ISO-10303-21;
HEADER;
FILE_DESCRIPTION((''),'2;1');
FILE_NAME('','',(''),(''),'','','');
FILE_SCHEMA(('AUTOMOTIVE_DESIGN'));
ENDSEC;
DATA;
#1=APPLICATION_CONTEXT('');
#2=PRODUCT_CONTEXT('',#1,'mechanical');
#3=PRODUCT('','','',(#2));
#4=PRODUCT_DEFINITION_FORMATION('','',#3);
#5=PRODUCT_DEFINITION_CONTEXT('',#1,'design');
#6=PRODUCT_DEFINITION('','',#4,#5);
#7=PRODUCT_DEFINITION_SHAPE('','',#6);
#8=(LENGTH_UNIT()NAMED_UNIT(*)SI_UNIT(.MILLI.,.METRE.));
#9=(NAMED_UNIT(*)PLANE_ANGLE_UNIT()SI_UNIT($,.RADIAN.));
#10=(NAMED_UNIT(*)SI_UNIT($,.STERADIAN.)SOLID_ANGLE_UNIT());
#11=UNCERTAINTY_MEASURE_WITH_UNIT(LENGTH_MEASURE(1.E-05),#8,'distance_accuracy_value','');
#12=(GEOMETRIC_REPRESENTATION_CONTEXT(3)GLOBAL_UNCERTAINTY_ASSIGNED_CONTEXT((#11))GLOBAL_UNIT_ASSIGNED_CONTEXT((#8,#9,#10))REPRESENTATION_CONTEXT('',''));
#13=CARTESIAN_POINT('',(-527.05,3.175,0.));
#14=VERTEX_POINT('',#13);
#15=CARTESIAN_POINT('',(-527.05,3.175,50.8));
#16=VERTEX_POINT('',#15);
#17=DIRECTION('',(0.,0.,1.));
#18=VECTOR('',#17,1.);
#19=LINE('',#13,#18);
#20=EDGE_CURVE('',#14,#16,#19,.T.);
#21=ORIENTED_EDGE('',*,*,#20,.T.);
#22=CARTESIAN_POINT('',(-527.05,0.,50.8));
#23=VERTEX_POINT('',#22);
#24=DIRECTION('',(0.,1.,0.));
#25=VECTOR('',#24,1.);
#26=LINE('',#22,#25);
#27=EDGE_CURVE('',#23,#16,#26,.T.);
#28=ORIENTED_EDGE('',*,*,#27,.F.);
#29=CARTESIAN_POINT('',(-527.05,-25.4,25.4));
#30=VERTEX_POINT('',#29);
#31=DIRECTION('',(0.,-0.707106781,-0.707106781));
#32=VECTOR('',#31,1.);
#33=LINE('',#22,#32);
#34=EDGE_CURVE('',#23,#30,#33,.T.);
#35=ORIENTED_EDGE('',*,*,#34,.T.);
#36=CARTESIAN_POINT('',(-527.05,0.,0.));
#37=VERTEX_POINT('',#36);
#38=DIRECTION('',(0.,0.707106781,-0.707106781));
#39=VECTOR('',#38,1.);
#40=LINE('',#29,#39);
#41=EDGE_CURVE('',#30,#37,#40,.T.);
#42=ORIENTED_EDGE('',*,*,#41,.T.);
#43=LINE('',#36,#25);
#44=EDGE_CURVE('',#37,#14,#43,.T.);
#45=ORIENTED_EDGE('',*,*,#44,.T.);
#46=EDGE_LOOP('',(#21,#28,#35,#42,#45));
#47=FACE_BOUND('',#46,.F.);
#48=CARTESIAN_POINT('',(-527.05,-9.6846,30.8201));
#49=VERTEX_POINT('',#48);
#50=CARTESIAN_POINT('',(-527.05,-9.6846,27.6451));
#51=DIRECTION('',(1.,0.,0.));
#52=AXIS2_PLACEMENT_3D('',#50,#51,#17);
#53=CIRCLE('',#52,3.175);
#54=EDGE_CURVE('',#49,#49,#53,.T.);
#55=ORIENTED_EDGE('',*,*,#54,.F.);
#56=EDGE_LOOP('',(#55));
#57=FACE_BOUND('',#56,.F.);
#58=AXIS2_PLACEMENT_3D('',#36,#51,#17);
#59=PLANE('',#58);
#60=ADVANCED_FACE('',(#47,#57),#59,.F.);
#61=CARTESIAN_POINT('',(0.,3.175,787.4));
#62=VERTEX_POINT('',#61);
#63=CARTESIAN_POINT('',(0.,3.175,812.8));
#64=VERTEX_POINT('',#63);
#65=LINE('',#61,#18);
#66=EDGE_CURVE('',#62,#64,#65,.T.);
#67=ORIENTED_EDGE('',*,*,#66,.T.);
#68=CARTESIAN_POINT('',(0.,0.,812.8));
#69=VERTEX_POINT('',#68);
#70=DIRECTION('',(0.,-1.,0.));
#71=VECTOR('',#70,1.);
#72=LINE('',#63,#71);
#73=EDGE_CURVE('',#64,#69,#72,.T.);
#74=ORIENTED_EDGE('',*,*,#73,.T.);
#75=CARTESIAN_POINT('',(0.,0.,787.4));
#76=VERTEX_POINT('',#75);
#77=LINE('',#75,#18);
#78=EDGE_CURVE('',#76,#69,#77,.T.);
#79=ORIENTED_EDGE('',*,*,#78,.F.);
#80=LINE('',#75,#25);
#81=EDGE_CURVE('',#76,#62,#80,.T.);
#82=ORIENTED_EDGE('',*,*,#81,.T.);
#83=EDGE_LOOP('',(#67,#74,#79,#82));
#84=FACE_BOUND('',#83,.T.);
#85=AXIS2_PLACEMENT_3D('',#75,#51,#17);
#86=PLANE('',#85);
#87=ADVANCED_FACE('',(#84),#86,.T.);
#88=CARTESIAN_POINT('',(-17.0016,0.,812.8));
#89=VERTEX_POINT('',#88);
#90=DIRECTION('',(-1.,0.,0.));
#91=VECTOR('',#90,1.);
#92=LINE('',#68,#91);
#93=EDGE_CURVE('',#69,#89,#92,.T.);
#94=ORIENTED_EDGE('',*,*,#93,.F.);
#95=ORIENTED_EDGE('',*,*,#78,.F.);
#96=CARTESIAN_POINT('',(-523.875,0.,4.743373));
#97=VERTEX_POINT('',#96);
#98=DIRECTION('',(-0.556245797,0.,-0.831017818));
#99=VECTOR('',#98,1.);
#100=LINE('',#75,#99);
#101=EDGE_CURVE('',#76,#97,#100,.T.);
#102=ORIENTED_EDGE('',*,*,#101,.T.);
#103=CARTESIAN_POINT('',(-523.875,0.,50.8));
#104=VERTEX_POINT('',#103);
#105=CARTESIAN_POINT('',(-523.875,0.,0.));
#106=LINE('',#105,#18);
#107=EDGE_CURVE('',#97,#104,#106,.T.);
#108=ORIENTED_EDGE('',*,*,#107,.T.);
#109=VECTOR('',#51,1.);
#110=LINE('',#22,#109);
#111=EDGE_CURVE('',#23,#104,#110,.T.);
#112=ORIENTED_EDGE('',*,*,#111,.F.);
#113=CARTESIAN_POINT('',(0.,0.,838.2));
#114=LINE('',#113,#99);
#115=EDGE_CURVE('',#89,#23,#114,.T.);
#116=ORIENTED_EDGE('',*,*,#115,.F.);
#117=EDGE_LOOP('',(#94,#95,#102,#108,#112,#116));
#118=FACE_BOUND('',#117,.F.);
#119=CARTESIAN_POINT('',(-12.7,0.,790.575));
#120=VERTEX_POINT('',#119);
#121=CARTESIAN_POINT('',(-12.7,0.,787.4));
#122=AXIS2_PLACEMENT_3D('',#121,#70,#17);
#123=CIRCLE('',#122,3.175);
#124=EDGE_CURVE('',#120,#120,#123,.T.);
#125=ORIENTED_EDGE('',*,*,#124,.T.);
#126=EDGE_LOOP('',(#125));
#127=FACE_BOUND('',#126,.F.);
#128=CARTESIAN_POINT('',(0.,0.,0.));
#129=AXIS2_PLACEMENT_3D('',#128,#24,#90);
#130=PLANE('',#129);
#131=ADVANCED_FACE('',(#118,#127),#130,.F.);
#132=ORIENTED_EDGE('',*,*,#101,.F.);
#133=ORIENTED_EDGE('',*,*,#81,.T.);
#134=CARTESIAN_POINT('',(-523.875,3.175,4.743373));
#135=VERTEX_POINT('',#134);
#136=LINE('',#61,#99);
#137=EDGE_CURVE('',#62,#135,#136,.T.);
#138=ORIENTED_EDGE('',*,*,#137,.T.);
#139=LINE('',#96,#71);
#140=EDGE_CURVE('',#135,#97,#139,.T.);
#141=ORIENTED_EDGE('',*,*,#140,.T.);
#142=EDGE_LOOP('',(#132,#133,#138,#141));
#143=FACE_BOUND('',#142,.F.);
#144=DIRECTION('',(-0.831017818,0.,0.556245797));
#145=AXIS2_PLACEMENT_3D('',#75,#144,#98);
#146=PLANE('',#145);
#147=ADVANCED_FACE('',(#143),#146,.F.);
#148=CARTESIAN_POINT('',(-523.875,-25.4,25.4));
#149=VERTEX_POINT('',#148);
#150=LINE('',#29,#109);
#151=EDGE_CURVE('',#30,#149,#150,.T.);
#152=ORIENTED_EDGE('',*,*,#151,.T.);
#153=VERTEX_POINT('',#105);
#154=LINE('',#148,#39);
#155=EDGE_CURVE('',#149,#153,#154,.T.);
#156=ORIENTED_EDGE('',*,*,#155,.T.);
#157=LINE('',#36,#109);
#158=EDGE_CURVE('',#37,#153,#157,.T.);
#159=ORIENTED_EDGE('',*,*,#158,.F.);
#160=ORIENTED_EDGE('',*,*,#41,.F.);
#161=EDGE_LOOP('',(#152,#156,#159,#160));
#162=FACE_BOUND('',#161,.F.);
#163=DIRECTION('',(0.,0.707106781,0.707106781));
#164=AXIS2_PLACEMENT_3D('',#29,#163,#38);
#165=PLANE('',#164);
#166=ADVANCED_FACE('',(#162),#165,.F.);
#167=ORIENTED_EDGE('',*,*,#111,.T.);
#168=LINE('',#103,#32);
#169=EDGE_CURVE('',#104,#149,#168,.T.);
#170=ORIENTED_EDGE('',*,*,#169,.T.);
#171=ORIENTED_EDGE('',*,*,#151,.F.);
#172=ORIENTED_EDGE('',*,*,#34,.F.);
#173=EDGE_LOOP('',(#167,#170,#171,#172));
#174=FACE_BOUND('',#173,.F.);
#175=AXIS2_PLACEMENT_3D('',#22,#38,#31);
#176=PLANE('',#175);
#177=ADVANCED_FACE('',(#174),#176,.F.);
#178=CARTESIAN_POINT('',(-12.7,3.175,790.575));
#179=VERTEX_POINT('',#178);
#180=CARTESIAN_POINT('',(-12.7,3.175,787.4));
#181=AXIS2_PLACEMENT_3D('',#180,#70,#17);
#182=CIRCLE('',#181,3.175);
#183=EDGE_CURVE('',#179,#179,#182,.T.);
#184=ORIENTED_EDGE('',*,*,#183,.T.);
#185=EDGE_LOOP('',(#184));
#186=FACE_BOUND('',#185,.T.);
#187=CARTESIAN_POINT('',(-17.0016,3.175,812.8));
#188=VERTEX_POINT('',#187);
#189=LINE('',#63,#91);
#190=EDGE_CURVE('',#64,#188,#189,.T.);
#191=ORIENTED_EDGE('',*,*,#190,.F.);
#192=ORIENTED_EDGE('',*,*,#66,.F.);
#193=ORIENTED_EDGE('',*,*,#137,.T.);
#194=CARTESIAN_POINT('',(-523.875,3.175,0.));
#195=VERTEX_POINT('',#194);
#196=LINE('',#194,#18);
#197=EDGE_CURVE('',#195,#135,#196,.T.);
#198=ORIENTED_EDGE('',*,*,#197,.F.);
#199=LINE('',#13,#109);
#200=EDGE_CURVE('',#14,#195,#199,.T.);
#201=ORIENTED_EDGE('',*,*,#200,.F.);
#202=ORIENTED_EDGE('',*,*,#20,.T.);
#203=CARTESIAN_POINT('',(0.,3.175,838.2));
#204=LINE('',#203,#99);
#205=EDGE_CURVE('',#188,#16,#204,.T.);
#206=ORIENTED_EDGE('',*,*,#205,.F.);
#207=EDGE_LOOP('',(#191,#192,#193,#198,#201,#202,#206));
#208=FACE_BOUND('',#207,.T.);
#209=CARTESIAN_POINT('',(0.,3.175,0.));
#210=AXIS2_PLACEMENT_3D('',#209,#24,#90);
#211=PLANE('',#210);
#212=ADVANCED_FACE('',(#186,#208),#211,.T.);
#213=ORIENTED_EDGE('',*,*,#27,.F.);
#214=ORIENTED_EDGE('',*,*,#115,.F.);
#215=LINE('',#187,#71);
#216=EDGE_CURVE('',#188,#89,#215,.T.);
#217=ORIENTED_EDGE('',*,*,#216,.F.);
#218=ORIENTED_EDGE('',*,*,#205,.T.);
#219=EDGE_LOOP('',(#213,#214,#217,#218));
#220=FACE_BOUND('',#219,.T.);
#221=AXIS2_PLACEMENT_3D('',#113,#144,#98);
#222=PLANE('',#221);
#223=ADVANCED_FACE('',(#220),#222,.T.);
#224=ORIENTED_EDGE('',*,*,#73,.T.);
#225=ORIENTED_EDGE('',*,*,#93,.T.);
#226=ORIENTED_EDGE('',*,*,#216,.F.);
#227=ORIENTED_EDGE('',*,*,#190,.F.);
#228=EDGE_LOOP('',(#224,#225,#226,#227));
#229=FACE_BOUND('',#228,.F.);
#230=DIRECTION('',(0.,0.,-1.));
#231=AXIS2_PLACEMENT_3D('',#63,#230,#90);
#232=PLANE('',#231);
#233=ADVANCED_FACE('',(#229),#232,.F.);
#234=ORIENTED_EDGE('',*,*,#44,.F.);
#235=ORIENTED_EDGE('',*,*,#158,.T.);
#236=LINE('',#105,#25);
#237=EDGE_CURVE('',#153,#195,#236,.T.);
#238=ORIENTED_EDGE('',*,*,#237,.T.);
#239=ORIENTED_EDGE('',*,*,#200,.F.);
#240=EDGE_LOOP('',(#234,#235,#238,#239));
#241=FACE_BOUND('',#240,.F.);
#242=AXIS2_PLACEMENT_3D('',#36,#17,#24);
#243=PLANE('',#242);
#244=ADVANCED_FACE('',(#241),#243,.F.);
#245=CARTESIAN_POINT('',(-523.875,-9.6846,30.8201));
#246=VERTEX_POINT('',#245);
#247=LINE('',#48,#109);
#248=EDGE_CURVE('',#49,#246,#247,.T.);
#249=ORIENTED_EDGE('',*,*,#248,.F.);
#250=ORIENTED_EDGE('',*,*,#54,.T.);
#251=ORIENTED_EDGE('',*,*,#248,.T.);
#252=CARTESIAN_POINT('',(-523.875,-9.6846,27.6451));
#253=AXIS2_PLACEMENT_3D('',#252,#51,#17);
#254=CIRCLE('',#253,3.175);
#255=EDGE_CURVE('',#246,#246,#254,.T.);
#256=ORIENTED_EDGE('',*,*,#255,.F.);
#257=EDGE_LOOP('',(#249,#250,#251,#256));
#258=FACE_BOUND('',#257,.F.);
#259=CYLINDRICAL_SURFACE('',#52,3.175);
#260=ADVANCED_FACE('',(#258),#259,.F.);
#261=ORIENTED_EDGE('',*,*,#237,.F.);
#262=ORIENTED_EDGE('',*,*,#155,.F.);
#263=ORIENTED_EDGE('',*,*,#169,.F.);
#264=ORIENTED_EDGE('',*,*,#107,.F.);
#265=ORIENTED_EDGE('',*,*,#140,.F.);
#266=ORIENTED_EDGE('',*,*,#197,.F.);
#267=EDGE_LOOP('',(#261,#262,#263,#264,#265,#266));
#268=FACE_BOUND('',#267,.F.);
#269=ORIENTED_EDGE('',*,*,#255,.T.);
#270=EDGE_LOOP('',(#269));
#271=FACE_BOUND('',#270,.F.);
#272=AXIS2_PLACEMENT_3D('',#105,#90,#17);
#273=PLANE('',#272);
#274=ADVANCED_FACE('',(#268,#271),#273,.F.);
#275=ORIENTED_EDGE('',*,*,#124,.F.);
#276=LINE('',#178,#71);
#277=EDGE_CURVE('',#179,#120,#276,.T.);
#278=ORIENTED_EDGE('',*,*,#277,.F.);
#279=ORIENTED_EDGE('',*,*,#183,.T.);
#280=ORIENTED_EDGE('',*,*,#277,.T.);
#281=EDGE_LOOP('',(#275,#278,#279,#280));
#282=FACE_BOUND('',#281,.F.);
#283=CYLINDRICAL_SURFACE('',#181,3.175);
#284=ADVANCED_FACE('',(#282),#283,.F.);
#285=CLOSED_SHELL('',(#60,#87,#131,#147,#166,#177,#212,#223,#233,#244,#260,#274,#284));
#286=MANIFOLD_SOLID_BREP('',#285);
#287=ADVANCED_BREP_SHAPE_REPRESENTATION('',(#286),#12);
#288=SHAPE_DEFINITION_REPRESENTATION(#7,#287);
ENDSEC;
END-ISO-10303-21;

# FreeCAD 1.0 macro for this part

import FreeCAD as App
import Part
import Sketcher

V = App.Vector
Q = App.Units.Quantity


def add_polygon(sketch, points):
    """Adds a closed chain of lines whose ends are joined by coincident constraints."""
    first, n = sketch.GeometryCount, len(points)
    for a, b in zip(points, points[1:] + points[:1]):
        sketch.addGeometry(Part.LineSegment(App.Vector(*a, 0), App.Vector(*b, 0)), False)
    for i in range(n):
        sketch.addConstraint(Sketcher.Constraint("Coincident", first + i, 2, first + (i + 1) % n, 1))

doc = App.newDocument("Part")
body = doc.addObject("PartDesign::Body", "Body")

# Sketch on XZ plane
sketch1 = doc.addObject("Sketcher::SketchObject", "Sketch")
body.addObject(sketch1)
sketch1.AttachmentSupport = (doc.XZ_Plane, [""])
sketch1.MapMode = "FlatFace"
add_polygon(sketch1, [(0, 838), (0, 787), (-527, 0), (-527, 51)])  # lines 0-3
sketch1.addConstraint([
    Sketcher.Constraint("Vertical", 0),
    Sketcher.Constraint("Vertical", 2),
    Sketcher.Constraint("PointOnObject", 0, 2, -2),
    Sketcher.Constraint("PointOnObject", 1, 2, -1),
    Sketcher.Constraint("Parallel", 1, 3),
    Sketcher.Constraint("DistanceY", 0, 2, 0, 1, Q("2 in")),
    Sketcher.Constraint("DistanceY", -1, 1, 0, 2, Q("31 in")),
    Sketcher.Constraint("DistanceX", 1, 2, -1, 1, Q("20.75 in")),
])
pad1 = doc.addObject("PartDesign::Pad", "Pad")
body.addObject(pad1)
pad1.Profile = sketch1
pad1.Length = Q("0.125 in")
pad1.Reversed = True

# Sketch on YZ plane
sketch2 = doc.addObject("Sketcher::SketchObject", "Sketch001")
body.addObject(sketch2)
sketch2.AttachmentSupport = (doc.YZ_Plane, [""])
sketch2.MapMode = "FlatFace"
sketch2.AttachmentOffset = App.Placement(V(0, 0, -20.75 * 25.4), App.Rotation())
add_polygon(sketch2, [(-25.4, 25.4), (0, 50.8), (3.2, 50.8), (3.2, 0), (0, 0)])  # lines 0-4
sketch2.addConstraint([
    Sketcher.Constraint("Horizontal", 1),
    Sketcher.Constraint("Vertical", 2),
    Sketcher.Constraint("Horizontal", 3),
    Sketcher.Constraint("Coincident", 3, 2, -1, 1),
    Sketcher.Constraint("PointOnObject", 0, 2, -2),
    Sketcher.Constraint("Perpendicular", 0, 4),
    Sketcher.Constraint("Equal", 0, 4),
    Sketcher.Constraint("DistanceY", 2, 2, 2, 1, Q("2 in")),
    Sketcher.Constraint("DistanceX", 1, 1, 1, 2, Q("0.125 in")),
])
pad2 = doc.addObject("PartDesign::Pad", "Pad001")
body.addObject(pad2)
pad2.Profile = sketch2
pad2.Length = Q("0.125 in")

# Sketch on XZ plane
sketch3 = doc.addObject("Sketcher::SketchObject", "Sketch002")
body.addObject(sketch3)
sketch3.AttachmentSupport = (doc.XZ_Plane, [""])
sketch3.MapMode = "FlatFace"
sketch3.AttachmentOffset = App.Placement(V(0, 0, -0.125 * 25.4), App.Rotation())
add_polygon(sketch3, [(0, 813), (-17, 813), (0, 838)])  # lines 0-2
sketch3.addConstraint([
    Sketcher.Constraint("Horizontal", 0),
    Sketcher.Constraint("Vertical", 2),
    Sketcher.Constraint("PointOnObject", 1, 2, -2),
    Sketcher.Constraint("DistanceY", 2, 2, 2, 1, Q("1 in")),
    Sketcher.Constraint("DistanceY", -1, 1, 0, 2, Q("32 in")),
    Sketcher.Constraint("DistanceX", 0, 2, 0, 1, Q("17.0016 mm")),
])
pocket1 = doc.addObject("PartDesign::Pocket", "Pocket")
body.addObject(pocket1)
pocket1.Profile = sketch3
pocket1.Length = Q("0.125 in")
pocket1.Reversed = True

# Sketch on YZ plane
sketch4 = doc.addObject("Sketcher::SketchObject", "Sketch003")
body.addObject(sketch4)
sketch4.AttachmentSupport = (doc.YZ_Plane, [""])
sketch4.MapMode = "FlatFace"
sketch4.AttachmentOffset = App.Placement(V(0, 0, -20.75 * 25.4), App.Rotation())
sketch4.addGeometry(Part.Circle(V(-9.7, 27.6, 0), V(0, 0, 1), 3.2), False)
sketch4.addConstraint([
    Sketcher.Constraint("Diameter", 0, Q("0.25 in")),
    Sketcher.Constraint("DistanceY", -1, 1, 0, 3, Q("1.0884 in")),
    Sketcher.Constraint("DistanceX", 0, 3, -1, 1, Q("9.6846 mm")),
])
doc.recompute()
hole = doc.addObject("PartDesign::Hole", "Hole")
body.addObject(hole)
hole.Profile = sketch4
hole.ThreadType = "None"
hole.Diameter = Q("0.25 in")
hole.DepthType = "ThroughAll"
hole.Reversed = True

# Sketch on XZ plane
sketch5 = doc.addObject("Sketcher::SketchObject", "Sketch004")
body.addObject(sketch5)
sketch5.AttachmentSupport = (doc.XZ_Plane, [""])
sketch5.MapMode = "FlatFace"
sketch5.AttachmentOffset = App.Placement(V(0, 0, -0.125 * 25.4), App.Rotation())
sketch5.addGeometry(Part.Circle(V(-12.7, 787.4, 0), V(0, 0, 1), 3.2), False)
sketch5.addConstraint([
    Sketcher.Constraint("Diameter", 0, Q("0.25 in")),
    Sketcher.Constraint("DistanceY", -1, 1, 0, 3, Q("31 in")),
    Sketcher.Constraint("DistanceX", 0, 3, -1, 1, Q("0.5 in")),
])
doc.recompute()
hole2 = doc.addObject("PartDesign::Hole", "Hole001")
body.addObject(hole2)
hole2.Profile = sketch5
hole2.ThreadType = "None"
hole2.Diameter = Q("0.25 in")
hole2.DepthType = "ThroughAll"
hole2.Reversed = True

doc.recompute()
